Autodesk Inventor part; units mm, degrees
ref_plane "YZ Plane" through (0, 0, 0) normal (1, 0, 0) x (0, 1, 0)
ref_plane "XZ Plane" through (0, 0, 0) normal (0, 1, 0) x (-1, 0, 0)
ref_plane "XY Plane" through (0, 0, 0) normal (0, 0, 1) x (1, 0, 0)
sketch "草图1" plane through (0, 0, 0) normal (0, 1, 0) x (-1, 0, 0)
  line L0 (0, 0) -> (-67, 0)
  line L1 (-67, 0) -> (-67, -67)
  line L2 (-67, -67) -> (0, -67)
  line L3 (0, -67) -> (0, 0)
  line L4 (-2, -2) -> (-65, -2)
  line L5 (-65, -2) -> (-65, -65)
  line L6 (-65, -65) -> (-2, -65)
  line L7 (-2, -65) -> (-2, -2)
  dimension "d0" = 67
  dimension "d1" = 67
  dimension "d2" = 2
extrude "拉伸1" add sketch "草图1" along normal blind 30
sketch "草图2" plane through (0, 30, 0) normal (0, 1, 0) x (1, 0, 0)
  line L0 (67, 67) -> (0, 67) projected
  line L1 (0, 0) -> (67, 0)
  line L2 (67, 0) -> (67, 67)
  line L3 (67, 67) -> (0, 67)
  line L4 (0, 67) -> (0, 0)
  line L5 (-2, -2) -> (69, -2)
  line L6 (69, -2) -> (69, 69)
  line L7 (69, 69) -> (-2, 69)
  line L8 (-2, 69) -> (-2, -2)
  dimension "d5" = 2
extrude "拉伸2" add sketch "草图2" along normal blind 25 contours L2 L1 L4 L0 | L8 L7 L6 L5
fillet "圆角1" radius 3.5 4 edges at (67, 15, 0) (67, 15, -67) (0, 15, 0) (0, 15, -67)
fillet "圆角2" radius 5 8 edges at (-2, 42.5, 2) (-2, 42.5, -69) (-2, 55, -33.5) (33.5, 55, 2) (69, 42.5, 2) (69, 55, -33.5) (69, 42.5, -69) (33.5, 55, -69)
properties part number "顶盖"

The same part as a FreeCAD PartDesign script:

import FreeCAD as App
import Part
import Sketcher


def edges_at(feature, points):
    """Names of the edges that pass closest to the given points."""
    edges = feature.Shape.Edges
    near = lambda p: min(range(len(edges)), key=lambda i: edges[i].distToShape(Part.Vertex(*p))[0])
    return sorted({f"Edge{near(p) + 1}" for p in points})

doc = App.newDocument("Part")
body = doc.addObject("PartDesign::Body", "Body")

sketch1 = body.newObject("Sketcher::SketchObject", "Sketch")
sketch1.AttachmentSupport = (doc.getObject("XZ_Plane"), [""])
sketch1.MapMode = "FlatFace"
sketch1.addGeometry([
    Part.LineSegment(App.Vector(0, -67, 0), App.Vector(0, 0, 0)),
    Part.LineSegment(App.Vector(0, 0, 0), App.Vector(67, 0, 0)),
    Part.LineSegment(App.Vector(67, 0, 0), App.Vector(67, -67, 0)),
    Part.LineSegment(App.Vector(67, -67, 0), App.Vector(0, -67, 0)),
    Part.LineSegment(App.Vector(65, -2, 0), App.Vector(2, -2, 0)),
    Part.LineSegment(App.Vector(2, -2, 0), App.Vector(2, -65, 0)),
    Part.LineSegment(App.Vector(2, -65, 0), App.Vector(65, -65, 0)),
    Part.LineSegment(App.Vector(65, -65, 0), App.Vector(65, -2, 0)),
], False)
sketch1.addConstraint([
    Sketcher.Constraint("Coincident", 0, 2, 1, 1),
    Sketcher.Constraint("Coincident", 1, 2, 2, 1),
    Sketcher.Constraint("Coincident", 2, 2, 3, 1),
    Sketcher.Constraint("Coincident", 3, 2, 0, 1),
    Sketcher.Constraint("Coincident", 4, 2, 5, 1),
    Sketcher.Constraint("Coincident", 5, 2, 6, 1),
    Sketcher.Constraint("Coincident", 6, 2, 7, 1),
    Sketcher.Constraint("Coincident", 7, 2, 4, 1),
    Sketcher.Constraint("Vertical", 0),
    Sketcher.Constraint("Horizontal", 1),
    Sketcher.Constraint("Vertical", 2),
    Sketcher.Constraint("Horizontal", 3),
    Sketcher.Constraint("Horizontal", 4),
    Sketcher.Constraint("Vertical", 5),
    Sketcher.Constraint("Horizontal", 6),
    Sketcher.Constraint("Vertical", 7),
    Sketcher.Constraint("Coincident", 0, 2, -1, 1),
    Sketcher.Constraint("Equal", 3, 0),
    Sketcher.Constraint("Equal", 6, 5),
    Sketcher.Constraint("DistanceX", 1, 1, 1, 2, 67.0),
    Sketcher.Constraint("DistanceX", -1, 1, 4, 2, 2.0),
    Sketcher.Constraint("DistanceY", 4, 2, -1, 1, 2.0),
    Sketcher.Constraint("DistanceY", 3, 2, 5, 2, 2.0),
])
pad1 = body.newObject("PartDesign::Pad", "Pad")
pad1.Profile = sketch1
pad1.Length = 30
pad1.Reversed = True

sketch2 = body.newObject("Sketcher::SketchObject", "Sketch001")
sketch2.AttachmentSupport = (doc.getObject("XZ_Plane"), [""])
sketch2.MapMode = "FlatFace"
sketch2.AttachmentOffset = App.Placement(App.Vector(0, 0, -30), App.Rotation())
sketch2.addGeometry([
    Part.LineSegment(App.Vector(-2, -69, 0), App.Vector(-2, 2, 0)),
    Part.LineSegment(App.Vector(-2, 2, 0), App.Vector(69, 2, 0)),
    Part.LineSegment(App.Vector(69, 2, 0), App.Vector(69, -69, 0)),
    Part.LineSegment(App.Vector(69, -69, 0), App.Vector(-2, -69, 0)),
], False)
sketch2.addConstraint([
    Sketcher.Constraint("Coincident", 0, 2, 1, 1),
    Sketcher.Constraint("Coincident", 1, 2, 2, 1),
    Sketcher.Constraint("Coincident", 2, 2, 3, 1),
    Sketcher.Constraint("Coincident", 3, 2, 0, 1),
    Sketcher.Constraint("Vertical", 0),
    Sketcher.Constraint("Horizontal", 1),
    Sketcher.Constraint("Vertical", 2),
    Sketcher.Constraint("Horizontal", 3),
    Sketcher.Constraint("Equal", 3, 0),
    Sketcher.Constraint("DistanceX", 0, 2, -1, 1, 2.0),
    Sketcher.Constraint("DistanceY", -1, 1, 0, 2, 2.0),
    Sketcher.Constraint("DistanceX", 1, 1, 1, 2, 71.0),
])
pad2 = body.newObject("PartDesign::Pad", "Pad001")
pad2.Profile = sketch2
pad2.Length = 25
pad2.Reversed = True
doc.recompute()

fillet = body.newObject("PartDesign::Fillet", "Fillet")
fillet.Base = (pad2, edges_at(pad2, [
    (67, 15, 0),
    (67, 15, -67),
    (0, 15, 0),
    (0, 15, -67),
]))
fillet.Radius = 3.5
doc.recompute()

fillet2 = body.newObject("PartDesign::Fillet", "Fillet001")
fillet2.Base = (fillet, edges_at(fillet, [
    (-2, 42.5, 2),
    (-2, 42.5, -69),
    (-2, 55, -33.5),
    (33.5, 55, 2),
    (69, 42.5, 2),
    (69, 55, -33.5),
    (69, 42.5, -69),
    (33.5, 55, -69),
]))
fillet2.Radius = 5

doc.recompute()
